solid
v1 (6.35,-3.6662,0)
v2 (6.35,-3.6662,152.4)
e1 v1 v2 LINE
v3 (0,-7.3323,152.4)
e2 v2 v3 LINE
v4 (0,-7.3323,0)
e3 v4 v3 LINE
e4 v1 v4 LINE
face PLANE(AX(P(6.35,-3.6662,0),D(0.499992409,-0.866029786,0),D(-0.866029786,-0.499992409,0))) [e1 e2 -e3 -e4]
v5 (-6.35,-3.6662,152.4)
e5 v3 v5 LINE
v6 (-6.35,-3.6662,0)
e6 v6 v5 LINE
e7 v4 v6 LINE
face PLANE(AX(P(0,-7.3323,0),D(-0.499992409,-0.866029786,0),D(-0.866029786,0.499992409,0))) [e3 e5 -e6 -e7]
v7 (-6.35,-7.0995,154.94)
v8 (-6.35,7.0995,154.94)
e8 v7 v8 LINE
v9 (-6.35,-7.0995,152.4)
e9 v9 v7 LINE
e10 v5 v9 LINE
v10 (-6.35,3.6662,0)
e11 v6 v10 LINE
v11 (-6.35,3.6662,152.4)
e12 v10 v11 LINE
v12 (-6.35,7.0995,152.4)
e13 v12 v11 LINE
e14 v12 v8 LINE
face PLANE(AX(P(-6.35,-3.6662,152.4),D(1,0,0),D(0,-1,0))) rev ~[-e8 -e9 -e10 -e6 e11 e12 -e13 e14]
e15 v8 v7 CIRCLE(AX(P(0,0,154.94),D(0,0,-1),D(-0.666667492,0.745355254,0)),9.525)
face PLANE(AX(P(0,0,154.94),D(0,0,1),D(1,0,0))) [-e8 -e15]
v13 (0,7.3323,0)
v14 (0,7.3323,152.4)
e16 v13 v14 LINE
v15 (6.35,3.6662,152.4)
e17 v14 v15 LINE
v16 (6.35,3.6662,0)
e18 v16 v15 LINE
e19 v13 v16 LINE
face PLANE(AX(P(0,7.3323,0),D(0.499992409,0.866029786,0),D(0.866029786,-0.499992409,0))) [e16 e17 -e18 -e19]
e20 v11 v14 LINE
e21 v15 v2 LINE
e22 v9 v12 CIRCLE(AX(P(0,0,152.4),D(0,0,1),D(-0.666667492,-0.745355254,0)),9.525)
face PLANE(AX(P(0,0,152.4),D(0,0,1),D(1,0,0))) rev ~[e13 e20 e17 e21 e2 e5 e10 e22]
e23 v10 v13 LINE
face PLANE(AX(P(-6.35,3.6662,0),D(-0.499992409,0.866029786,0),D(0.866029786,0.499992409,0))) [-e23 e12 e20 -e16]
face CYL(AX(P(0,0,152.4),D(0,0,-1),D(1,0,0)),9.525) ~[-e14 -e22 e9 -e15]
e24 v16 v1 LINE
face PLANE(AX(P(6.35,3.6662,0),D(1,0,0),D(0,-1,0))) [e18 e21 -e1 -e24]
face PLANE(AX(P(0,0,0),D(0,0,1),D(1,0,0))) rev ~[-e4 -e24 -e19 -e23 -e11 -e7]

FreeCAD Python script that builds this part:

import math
import FreeCAD as App
import Part
import Sketcher
from FreeCAD import Vector
Q = App.Units.Quantity

doc = App.newDocument("Part")
body = doc.addObject("PartDesign::Body", "Body")

sketch1 = body.newObject("Sketcher::SketchObject", "Sketch")
sketch1.AttachmentSupport = (doc.getObject("XY_Plane"), [""])
sketch1.MapMode = "FlatFace"
sketch1.addGeometry(Part.LineSegment(Vector(6, 4, 0), Vector(0, 7, 0)), False)
sketch1.addGeometry(Part.LineSegment(Vector(0, 7, 0), Vector(-6, 4, 0)), False)
sketch1.addGeometry(Part.LineSegment(Vector(-6, 4, 0), Vector(-6, -4, 0)), False)
sketch1.addGeometry(Part.LineSegment(Vector(-6, -4, 0), Vector(0, -7, 0)), False)
sketch1.addGeometry(Part.LineSegment(Vector(0, -7, 0), Vector(6, -4, 0)), False)
sketch1.addGeometry(Part.LineSegment(Vector(6, -4, 0), Vector(6, 4, 0)), False)
sketch1.addConstraint(Sketcher.Constraint("Coincident", 0, 2, 1, 1))
sketch1.addConstraint(Sketcher.Constraint("Coincident", 1, 2, 2, 1))
sketch1.addConstraint(Sketcher.Constraint("Coincident", 2, 2, 3, 1))
sketch1.addConstraint(Sketcher.Constraint("Coincident", 3, 2, 4, 1))
sketch1.addConstraint(Sketcher.Constraint("Coincident", 4, 2, 5, 1))
sketch1.addConstraint(Sketcher.Constraint("Coincident", 5, 2, 0, 1))
sketch1.addConstraint(Sketcher.Constraint("Vertical", 2))
sketch1.addConstraint(Sketcher.Constraint("Vertical", 5))
sketch1.addConstraint(Sketcher.Constraint("Symmetric", 0, 2, 3, 2, -1, 1))
sketch1.addConstraint(Sketcher.Constraint("Symmetric", 1, 2, 4, 2, -1, 1))
sketch1.addConstraint(Sketcher.Constraint("PointOnObject", 0, 2, -2))
sketch1.addConstraint(Sketcher.Constraint("Parallel", 0, 3))
sketch1.addConstraint(Sketcher.Constraint("Horizontal", 2, 2, 4, 2))
sketch1.addConstraint(Sketcher.Constraint("DistanceX", 2, 2, 4, 2, Q("0.5 in")))
sketch1.addConstraint(Sketcher.Constraint("Angle", 0, Q("150.0005 deg")))
sketch1.addConstraint(Sketcher.Constraint("DistanceY", 2, 2, 0, 2, Q("0.433 in")))
pad1 = body.newObject("PartDesign::Pad", "Pad")
pad1.Profile = sketch1
pad1.Length = Q("6 in")

sketch2 = body.newObject("Sketcher::SketchObject", "Sketch001")
sketch2.AttachmentSupport = (doc.getObject("XY_Plane"), [""])
sketch2.MapMode = "FlatFace"
sketch2.AttachmentOffset = App.Placement(Vector(0, 0, 6 * 25.4), App.Rotation())
sketch2.addGeometry(Part.ArcOfCircle(Part.Circle(Vector(0, 0, 0), Vector(0, 0, 1), 10), math.radians(-132), math.radians(132)), False)
sketch2.addGeometry(Part.LineSegment(Vector(-6, -7, 0), Vector(-6, 7, 0)), False)
sketch2.addConstraint(Sketcher.Constraint("Coincident", 0, 1, 1, 1))
sketch2.addConstraint(Sketcher.Constraint("Coincident", 1, 2, 0, 2))
sketch2.addConstraint(Sketcher.Constraint("Vertical", 1))
sketch2.addConstraint(Sketcher.Constraint("Coincident", 0, 3, -1, 1))
sketch2.addConstraint(Sketcher.Constraint("Radius", 0, Q("0.375 in")))
sketch2.addConstraint(Sketcher.Constraint("DistanceX", 0, 1, -1, 1, Q("0.25 in")))
pad2 = body.newObject("PartDesign::Pad", "Pad001")
pad2.Profile = sketch2
pad2.Length = Q("0.1 in")

doc.recompute()
